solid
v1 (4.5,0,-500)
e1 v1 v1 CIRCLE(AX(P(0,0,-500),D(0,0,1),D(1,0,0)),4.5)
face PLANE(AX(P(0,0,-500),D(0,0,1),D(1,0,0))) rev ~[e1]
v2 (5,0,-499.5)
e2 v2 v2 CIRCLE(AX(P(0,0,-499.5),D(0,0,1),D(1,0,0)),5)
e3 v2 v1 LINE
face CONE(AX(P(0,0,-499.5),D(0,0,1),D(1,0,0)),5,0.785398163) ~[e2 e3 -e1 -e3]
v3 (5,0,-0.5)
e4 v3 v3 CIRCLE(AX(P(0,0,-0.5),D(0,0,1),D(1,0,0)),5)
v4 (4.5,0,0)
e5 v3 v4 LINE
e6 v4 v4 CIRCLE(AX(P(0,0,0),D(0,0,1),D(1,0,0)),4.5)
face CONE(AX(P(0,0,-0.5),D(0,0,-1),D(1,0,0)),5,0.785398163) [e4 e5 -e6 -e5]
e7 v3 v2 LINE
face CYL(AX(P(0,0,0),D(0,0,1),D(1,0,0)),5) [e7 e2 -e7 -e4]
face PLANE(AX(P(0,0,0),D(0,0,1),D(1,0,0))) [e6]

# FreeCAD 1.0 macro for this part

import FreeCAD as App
import Part
import Sketcher

V = App.Vector


def edges_at(feature, points):
    """Names of the edges that pass closest to the given points."""
    edges = feature.Shape.Edges
    near = lambda p: min(range(len(edges)), key=lambda i: edges[i].distToShape(Part.Vertex(*p))[0])
    return sorted({f"Edge{near(p) + 1}" for p in points})

doc = App.newDocument("Part")
body = doc.addObject("PartDesign::Body", "Body")

# Sketch on XY plane
sketch1 = body.newObject("Sketcher::SketchObject", "Sketch")
sketch1.AttachmentSupport = (doc.getObject("XY_Plane"), [""])
sketch1.MapMode = "FlatFace"
sketch1.addGeometry(Part.Circle(V(0, 0, 0), V(0, 0, 1), 5), False)
sketch1.addConstraint([
    Sketcher.Constraint("Coincident", 0, 3, -1, 1),
    Sketcher.Constraint("Diameter", 0, 10.0),
])
pad1 = body.newObject("PartDesign::Pad", "Pad")
pad1.Profile = sketch1
pad1.Length = 500
pad1.Reversed = True
doc.recompute()

chamfer = body.newObject("PartDesign::Chamfer", "Chamfer")
chamfer.Base = (pad1, edges_at(pad1, [(-5, 0, 0), (-5, 0, -500)]))
chamfer.Size = 0.5

doc.recompute()
